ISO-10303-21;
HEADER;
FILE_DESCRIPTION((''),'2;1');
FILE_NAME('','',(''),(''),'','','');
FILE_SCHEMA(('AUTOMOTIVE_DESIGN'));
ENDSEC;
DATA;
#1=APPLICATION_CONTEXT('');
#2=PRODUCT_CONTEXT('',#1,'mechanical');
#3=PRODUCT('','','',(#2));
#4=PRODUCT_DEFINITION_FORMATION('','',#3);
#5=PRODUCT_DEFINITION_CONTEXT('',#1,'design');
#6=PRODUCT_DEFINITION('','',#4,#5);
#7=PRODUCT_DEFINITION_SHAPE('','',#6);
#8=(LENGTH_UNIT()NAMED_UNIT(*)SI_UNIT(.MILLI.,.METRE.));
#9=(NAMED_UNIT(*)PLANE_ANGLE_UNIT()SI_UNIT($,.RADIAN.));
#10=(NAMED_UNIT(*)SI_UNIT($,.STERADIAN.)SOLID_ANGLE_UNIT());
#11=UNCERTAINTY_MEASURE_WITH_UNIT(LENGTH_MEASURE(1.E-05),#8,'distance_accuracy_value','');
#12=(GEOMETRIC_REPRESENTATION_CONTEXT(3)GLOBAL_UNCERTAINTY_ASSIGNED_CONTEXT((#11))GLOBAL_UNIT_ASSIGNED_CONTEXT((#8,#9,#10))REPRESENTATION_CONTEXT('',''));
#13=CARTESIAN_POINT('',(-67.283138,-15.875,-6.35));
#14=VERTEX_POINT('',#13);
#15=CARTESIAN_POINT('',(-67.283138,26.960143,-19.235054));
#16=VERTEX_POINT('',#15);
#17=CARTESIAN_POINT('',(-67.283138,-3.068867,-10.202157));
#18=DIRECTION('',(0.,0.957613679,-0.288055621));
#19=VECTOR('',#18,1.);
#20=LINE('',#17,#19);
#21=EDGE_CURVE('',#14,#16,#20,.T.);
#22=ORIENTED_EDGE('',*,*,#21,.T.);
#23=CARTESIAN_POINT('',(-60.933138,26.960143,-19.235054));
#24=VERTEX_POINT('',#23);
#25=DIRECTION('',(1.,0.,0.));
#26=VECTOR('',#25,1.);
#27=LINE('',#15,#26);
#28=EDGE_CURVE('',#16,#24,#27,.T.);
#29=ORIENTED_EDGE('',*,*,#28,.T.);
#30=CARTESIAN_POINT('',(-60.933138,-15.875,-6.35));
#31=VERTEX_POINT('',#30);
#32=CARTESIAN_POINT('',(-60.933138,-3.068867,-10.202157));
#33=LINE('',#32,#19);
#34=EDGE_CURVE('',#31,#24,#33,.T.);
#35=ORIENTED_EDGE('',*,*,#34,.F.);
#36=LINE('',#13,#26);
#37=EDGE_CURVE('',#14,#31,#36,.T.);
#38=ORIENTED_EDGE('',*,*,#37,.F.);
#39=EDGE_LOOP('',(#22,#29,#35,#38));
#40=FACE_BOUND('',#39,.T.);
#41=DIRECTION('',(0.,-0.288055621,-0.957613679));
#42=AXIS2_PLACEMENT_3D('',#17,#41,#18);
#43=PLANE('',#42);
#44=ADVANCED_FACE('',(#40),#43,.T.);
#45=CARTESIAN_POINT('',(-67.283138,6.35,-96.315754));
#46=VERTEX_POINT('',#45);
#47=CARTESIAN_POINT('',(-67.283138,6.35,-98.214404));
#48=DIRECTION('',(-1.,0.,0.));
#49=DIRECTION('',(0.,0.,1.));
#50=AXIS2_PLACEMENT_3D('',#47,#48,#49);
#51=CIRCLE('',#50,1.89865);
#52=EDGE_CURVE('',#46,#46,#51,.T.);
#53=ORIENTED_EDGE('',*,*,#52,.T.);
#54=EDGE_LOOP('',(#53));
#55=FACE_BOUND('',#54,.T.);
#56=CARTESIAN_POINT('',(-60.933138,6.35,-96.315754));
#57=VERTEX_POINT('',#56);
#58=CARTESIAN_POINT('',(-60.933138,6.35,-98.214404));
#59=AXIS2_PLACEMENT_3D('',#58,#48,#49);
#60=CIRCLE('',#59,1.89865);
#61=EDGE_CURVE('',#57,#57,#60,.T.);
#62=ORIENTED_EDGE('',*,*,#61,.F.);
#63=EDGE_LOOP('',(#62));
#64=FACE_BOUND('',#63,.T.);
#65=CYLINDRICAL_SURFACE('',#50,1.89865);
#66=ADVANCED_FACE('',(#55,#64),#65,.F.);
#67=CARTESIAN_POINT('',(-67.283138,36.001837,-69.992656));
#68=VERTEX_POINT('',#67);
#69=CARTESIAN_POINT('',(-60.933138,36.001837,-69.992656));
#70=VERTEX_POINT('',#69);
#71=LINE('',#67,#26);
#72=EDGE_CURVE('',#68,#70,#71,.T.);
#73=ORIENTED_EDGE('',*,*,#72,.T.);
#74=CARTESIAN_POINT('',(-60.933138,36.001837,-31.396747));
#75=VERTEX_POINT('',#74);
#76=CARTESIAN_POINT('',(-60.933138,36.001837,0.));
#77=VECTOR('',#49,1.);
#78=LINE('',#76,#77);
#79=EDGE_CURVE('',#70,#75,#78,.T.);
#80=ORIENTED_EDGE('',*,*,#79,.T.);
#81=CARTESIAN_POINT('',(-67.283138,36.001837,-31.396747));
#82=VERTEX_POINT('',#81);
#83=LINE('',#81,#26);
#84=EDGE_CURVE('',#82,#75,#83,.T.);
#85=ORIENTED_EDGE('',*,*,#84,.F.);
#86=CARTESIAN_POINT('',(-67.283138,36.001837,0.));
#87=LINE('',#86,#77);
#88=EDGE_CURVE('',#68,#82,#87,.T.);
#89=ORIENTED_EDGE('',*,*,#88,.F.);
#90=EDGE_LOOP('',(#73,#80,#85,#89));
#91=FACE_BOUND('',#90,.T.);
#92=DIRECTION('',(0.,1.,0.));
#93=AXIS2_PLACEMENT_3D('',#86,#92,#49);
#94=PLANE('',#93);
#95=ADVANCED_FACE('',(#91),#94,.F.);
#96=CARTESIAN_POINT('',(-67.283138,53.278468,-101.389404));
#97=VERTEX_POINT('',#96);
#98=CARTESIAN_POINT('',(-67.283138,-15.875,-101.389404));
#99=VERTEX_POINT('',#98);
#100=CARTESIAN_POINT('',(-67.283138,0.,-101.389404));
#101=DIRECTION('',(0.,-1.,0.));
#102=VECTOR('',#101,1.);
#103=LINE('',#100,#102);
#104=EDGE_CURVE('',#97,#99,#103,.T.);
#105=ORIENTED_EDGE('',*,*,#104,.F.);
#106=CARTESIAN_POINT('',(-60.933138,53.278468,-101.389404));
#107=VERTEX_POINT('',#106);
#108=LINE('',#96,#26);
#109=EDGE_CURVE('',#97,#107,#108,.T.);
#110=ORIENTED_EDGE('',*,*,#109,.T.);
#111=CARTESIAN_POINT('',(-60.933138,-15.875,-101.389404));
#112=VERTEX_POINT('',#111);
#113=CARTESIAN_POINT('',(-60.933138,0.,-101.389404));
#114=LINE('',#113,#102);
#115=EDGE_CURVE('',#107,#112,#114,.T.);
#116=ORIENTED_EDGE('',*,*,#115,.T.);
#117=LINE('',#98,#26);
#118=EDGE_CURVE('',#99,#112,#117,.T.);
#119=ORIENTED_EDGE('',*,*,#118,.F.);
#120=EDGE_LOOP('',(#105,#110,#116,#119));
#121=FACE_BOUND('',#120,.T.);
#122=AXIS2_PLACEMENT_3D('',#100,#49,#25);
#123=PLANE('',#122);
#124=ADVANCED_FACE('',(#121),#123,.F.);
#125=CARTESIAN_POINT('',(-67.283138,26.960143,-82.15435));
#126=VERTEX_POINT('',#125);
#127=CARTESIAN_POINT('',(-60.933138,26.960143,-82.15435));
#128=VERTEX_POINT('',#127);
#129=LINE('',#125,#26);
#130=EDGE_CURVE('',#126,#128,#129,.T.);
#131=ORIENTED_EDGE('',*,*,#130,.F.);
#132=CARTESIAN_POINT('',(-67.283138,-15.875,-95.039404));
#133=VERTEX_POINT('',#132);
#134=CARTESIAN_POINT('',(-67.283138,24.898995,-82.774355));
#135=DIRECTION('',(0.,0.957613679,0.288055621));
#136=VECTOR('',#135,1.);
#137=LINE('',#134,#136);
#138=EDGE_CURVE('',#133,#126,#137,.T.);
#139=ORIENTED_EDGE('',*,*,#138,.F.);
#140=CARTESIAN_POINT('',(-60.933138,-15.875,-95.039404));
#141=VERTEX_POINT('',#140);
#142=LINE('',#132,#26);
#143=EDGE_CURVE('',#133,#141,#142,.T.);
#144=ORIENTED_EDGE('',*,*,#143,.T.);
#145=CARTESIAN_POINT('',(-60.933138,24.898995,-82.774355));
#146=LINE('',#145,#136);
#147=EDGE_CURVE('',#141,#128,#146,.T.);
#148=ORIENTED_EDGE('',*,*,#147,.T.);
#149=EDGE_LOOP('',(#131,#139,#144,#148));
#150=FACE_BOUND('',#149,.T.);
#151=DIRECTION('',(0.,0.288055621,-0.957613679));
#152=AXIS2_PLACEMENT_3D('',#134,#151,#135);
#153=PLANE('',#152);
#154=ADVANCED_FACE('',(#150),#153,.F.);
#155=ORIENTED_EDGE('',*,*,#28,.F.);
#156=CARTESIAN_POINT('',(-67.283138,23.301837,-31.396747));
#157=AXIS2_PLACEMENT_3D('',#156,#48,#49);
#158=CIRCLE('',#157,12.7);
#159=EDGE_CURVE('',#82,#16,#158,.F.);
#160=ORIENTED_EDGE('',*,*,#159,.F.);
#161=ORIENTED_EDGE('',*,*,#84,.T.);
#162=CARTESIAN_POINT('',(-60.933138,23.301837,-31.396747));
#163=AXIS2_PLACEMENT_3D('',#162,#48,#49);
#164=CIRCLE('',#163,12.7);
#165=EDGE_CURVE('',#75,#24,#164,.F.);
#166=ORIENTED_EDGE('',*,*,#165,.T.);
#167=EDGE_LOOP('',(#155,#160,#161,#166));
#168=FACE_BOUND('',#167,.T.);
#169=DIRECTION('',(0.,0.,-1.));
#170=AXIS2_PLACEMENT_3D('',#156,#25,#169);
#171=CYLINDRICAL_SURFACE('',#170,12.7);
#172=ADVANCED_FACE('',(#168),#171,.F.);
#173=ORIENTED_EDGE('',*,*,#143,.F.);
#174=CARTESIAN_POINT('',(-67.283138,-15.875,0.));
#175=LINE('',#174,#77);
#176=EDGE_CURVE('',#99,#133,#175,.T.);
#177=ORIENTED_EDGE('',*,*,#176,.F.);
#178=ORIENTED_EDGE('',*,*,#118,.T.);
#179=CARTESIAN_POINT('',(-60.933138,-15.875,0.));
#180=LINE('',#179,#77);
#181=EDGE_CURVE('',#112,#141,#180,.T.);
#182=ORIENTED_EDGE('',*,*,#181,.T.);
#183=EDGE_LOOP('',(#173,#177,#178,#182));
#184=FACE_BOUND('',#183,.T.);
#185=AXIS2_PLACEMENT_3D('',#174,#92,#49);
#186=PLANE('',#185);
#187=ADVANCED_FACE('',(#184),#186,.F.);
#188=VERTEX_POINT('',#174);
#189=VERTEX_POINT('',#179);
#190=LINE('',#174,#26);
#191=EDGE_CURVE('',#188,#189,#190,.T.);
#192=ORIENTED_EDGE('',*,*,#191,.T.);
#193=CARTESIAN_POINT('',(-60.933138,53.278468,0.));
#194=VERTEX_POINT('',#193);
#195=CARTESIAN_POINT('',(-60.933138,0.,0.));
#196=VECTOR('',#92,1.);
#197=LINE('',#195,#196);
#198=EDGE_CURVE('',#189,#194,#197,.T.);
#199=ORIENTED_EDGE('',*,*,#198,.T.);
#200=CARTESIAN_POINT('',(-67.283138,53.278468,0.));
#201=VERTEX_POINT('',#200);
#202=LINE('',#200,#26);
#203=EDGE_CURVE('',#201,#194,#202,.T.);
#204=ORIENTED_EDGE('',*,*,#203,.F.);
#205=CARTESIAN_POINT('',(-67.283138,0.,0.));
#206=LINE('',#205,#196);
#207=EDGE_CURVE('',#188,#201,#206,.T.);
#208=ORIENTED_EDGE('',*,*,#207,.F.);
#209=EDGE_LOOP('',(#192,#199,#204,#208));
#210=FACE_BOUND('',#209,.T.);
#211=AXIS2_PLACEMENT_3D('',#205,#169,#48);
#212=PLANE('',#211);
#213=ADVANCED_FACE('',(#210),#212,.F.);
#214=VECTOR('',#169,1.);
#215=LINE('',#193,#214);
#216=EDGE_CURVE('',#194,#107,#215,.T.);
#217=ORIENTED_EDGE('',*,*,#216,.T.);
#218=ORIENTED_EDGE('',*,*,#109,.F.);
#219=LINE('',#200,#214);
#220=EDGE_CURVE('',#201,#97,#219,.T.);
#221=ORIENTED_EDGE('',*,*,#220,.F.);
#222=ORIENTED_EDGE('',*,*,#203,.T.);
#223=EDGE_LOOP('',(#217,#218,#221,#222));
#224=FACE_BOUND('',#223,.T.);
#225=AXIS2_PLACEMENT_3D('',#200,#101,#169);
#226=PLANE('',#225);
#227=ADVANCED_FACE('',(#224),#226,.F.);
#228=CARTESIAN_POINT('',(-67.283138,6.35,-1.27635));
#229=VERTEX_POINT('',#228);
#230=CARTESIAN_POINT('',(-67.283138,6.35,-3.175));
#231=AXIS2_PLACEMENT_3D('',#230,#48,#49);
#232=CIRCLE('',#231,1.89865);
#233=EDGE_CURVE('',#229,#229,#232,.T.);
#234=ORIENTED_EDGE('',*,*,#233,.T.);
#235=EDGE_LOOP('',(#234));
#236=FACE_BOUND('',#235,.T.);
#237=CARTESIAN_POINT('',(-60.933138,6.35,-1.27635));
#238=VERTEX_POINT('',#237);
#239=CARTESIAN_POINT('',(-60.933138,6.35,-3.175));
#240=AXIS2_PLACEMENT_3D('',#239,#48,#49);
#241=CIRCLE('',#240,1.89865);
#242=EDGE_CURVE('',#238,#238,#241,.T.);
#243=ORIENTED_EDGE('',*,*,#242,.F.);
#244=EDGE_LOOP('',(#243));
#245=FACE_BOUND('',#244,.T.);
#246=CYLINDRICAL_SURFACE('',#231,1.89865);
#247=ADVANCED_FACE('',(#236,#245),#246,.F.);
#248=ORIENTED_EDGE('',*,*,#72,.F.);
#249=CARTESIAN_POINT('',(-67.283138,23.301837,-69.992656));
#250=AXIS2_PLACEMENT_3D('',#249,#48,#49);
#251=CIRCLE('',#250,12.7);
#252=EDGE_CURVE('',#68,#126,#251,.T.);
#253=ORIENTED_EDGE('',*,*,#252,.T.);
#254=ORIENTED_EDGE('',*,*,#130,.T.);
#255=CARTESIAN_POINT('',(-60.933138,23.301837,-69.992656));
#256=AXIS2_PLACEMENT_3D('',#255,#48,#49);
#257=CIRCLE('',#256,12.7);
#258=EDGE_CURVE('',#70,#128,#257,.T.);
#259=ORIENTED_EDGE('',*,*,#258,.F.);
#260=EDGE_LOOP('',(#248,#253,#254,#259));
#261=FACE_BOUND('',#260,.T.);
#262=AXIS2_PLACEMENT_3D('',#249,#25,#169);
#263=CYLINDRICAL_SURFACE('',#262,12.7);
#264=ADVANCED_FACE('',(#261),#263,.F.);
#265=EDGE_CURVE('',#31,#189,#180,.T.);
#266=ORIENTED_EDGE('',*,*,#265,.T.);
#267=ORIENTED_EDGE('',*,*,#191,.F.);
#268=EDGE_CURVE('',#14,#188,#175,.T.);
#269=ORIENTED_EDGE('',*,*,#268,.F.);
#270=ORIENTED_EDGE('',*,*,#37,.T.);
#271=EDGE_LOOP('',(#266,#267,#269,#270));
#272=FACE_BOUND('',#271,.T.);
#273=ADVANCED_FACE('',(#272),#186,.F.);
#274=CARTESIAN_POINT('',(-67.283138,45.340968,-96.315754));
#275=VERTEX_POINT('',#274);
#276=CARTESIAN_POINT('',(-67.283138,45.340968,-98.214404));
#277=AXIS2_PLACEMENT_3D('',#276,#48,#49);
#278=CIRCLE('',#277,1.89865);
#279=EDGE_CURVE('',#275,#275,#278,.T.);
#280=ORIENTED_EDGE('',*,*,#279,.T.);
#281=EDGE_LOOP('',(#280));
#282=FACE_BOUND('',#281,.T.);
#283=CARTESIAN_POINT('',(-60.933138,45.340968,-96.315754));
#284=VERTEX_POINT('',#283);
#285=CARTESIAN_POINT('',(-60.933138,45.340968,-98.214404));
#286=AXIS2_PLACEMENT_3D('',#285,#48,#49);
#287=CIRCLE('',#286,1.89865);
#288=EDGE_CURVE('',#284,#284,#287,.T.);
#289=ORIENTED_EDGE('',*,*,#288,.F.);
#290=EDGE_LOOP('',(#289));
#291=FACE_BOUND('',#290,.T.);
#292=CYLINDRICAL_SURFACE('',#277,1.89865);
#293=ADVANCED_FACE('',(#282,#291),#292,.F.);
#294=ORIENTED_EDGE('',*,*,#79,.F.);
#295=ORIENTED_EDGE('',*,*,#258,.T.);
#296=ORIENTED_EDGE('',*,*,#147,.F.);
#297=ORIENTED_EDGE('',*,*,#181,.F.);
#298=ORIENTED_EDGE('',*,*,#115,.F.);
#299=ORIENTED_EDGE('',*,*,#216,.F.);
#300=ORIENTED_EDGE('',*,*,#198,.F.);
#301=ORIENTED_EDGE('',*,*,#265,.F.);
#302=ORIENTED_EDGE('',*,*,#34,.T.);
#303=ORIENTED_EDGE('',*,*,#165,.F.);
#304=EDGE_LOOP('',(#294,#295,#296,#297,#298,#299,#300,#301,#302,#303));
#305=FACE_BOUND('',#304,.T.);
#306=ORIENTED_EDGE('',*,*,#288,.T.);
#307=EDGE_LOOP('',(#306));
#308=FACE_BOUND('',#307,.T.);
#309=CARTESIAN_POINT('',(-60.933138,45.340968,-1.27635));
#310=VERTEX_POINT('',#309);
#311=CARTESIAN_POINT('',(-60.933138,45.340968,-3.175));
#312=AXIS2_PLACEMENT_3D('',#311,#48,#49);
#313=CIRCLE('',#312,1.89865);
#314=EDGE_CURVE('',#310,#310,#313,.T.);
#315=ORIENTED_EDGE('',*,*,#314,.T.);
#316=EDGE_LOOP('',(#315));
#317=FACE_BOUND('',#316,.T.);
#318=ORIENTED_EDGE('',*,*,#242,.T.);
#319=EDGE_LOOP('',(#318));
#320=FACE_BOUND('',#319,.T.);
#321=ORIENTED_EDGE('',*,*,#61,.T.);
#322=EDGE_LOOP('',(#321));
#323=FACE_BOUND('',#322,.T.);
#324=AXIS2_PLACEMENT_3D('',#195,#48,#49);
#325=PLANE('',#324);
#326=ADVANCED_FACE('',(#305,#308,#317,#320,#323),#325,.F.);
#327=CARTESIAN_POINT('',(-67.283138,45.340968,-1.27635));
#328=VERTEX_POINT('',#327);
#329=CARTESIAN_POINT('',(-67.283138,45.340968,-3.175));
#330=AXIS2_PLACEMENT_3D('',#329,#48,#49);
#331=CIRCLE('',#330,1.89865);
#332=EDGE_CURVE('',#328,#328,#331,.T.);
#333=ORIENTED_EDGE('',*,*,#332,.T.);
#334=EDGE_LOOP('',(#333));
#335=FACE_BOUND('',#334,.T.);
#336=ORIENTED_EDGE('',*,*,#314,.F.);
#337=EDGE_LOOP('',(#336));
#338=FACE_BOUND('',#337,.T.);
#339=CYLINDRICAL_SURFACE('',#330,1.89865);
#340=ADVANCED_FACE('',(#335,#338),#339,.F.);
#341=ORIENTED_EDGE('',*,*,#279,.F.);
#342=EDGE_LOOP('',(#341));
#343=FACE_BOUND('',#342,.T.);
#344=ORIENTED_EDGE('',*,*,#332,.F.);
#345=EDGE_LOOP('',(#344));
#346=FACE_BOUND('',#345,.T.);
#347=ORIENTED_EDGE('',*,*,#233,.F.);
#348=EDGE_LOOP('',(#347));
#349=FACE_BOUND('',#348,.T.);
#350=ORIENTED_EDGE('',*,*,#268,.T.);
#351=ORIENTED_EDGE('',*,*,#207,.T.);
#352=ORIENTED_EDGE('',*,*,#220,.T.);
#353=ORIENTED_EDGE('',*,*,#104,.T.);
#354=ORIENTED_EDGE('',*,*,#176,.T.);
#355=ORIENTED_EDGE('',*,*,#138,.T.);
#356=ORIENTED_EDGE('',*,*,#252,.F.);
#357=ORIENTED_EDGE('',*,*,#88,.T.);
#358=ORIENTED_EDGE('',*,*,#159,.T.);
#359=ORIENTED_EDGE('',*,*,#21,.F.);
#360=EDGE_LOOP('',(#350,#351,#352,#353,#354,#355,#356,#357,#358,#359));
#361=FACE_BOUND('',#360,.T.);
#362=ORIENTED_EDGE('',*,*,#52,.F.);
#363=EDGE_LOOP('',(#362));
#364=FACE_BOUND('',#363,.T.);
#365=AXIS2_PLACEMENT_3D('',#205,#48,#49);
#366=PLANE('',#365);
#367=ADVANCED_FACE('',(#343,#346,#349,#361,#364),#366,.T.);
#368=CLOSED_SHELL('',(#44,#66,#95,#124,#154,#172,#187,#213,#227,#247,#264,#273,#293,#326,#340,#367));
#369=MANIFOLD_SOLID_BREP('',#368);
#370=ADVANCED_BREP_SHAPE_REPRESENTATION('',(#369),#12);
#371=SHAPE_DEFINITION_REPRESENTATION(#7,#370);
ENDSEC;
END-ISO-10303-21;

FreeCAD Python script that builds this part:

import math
import FreeCAD as App
import Part
import Sketcher

V = App.Vector
Q = App.Units.Quantity

doc = App.newDocument("Part")
body = doc.addObject("PartDesign::Body", "Body")

# Sketch on YZ plane
sketch1 = doc.addObject("Sketcher::SketchObject", "Sketch")
body.addObject(sketch1)
sketch1.AttachmentSupport = (doc.YZ_Plane, [""])
sketch1.MapMode = "FlatFace"
sketch1.AttachmentOffset = App.Placement(V(0, 0, -60.933138), App.Rotation())
sketch1.addGeometry([
    Part.LineSegment(V(-16, -6, 0), V(-16, 0, 0)),  # 0
    Part.LineSegment(V(-16, 0, 0), V(53, 0, 0)),  # 1
    Part.LineSegment(V(53, 0, 0), V(53, -101, 0)),  # 2
    Part.LineSegment(V(53, -101, 0), V(-16, -101, 0)),  # 3
    Part.LineSegment(V(-16, -101, 0), V(-16, -95, 0)),  # 4
    Part.LineSegment(V(-16, -95, 0), V(27, -82, 0)),  # 5
    Part.ArcOfCircle(Part.Circle(V(23, -70, 0), V(0, 0, 1), 13), math.radians(-73), math.radians(0)),  # 6
    Part.LineSegment(V(36, -70, 0), V(36, -31, 0)),  # 7
    Part.ArcOfCircle(Part.Circle(V(23, -31, 0), V(0, 0, 1), 13), math.radians(0), math.radians(73)),  # 8
    Part.LineSegment(V(27, -19, 0), V(-16, -6, 0)),  # 9
], False)
sketch1.addConstraint([
    Sketcher.Constraint("Coincident", 0, 2, 1, 1),
    Sketcher.Constraint("Coincident", 1, 2, 2, 1),
    Sketcher.Constraint("Coincident", 2, 2, 3, 1),
    Sketcher.Constraint("Coincident", 3, 2, 4, 1),
    Sketcher.Constraint("Coincident", 4, 2, 5, 1),
    Sketcher.Constraint("Tangent", 5, 2, 6, 1),
    Sketcher.Constraint("Tangent", 6, 2, 7, 1),
    Sketcher.Constraint("Tangent", 7, 2, 8, 1),
    Sketcher.Constraint("Tangent", 8, 2, 9, 1),
    Sketcher.Constraint("Coincident", 9, 2, 0, 1),
    Sketcher.Constraint("Vertical", 0),
    Sketcher.Constraint("Horizontal", 1),
    Sketcher.Constraint("Vertical", 2),
    Sketcher.Constraint("Horizontal", 3),
    Sketcher.Constraint("Vertical", 4),
    Sketcher.Constraint("Vertical", 7),
    Sketcher.Constraint("Equal", 6, 8),
    Sketcher.Constraint("PointOnObject", 0, 2, -1),
    Sketcher.Constraint("Vertical", 0, 2, 3, 2),
    Sketcher.Constraint("Vertical", 5, 2, 8, 2),
    Sketcher.Constraint("Equal", 0, 4),
    Sketcher.Constraint("Radius", 6, Q("0.5 in")),
    Sketcher.Constraint("DistanceY", 0, 1, 0, 2, Q("0.25 in")),
    Sketcher.Constraint("DistanceX", 0, 2, -1, 1, Q("0.625 in")),
    Sketcher.Constraint("DistanceY", 7, 1, 7, 2, Q("38.595909 mm")),
    Sketcher.Constraint("Distance", 5, Q("44.731131 mm")),
    Sketcher.Constraint("DistanceX", 1, 1, 1, 2, Q("69.153468 mm")),
    Sketcher.Constraint("DistanceY", 2, 2, 2, 1, Q("101.389404 mm")),
])
pad1 = doc.addObject("PartDesign::Pad", "Pad")
body.addObject(pad1)
pad1.Profile = sketch1
pad1.Length = Q("0.25 in")
pad1.Reversed = True

# Sketch on YZ plane
sketch2 = doc.addObject("Sketcher::SketchObject", "Sketch001")
body.addObject(sketch2)
sketch2.AttachmentSupport = (doc.YZ_Plane, [""])
sketch2.MapMode = "FlatFace"
sketch2.AttachmentOffset = App.Placement(V(0, 0, -67.283138), App.Rotation())
sketch2.addGeometry([
    Part.Circle(V(45.3, -3.2, 0), V(0, 0, 1), 1.9),
    Part.Circle(V(6.3, -3.2, 0), V(0, 0, 1), 1.9),
    Part.Circle(V(6.3, -98.2, 0), V(0, 0, 1), 1.9),
    Part.Circle(V(45.3, -98.2, 0), V(0, 0, 1), 1.9),
], False)
sketch2.addConstraint([
    Sketcher.Constraint("Equal", 0, 1),
    Sketcher.Constraint("Equal", 1, 2),
    Sketcher.Constraint("Equal", 2, 3),
    Sketcher.Constraint("Horizontal", 0, 3, 1, 3),
    Sketcher.Constraint("Horizontal", 2, 3, 3, 3),
    Sketcher.Constraint("Vertical", 1, 3, 2, 3),
    Sketcher.Constraint("Vertical", 0, 3, 3, 3),
    Sketcher.Constraint("Diameter", 0, Q("0.1495 in")),
    Sketcher.Constraint("DistanceX", -1, 1, 1, 3, Q("0.25 in")),
    Sketcher.Constraint("DistanceY", 0, 3, -1, 1, Q("0.125 in")),
    Sketcher.Constraint("DistanceX", -1, 1, 0, 3, Q("45.340968 mm")),
    Sketcher.Constraint("DistanceY", 2, 3, -1, 1, Q("98.214404 mm")),
])
doc.recompute()
hole = doc.addObject("PartDesign::Hole", "Hole")
body.addObject(hole)
hole.Profile = sketch2
hole.ThreadType = "None"
hole.Diameter = Q("0.1495 in")
hole.DepthType = "Dimension"
hole.Depth = Q("0.37 in")
hole.DrillPoint = "Angled"
hole.DrillPointAngle = 118
hole.Reversed = True

doc.recompute()
